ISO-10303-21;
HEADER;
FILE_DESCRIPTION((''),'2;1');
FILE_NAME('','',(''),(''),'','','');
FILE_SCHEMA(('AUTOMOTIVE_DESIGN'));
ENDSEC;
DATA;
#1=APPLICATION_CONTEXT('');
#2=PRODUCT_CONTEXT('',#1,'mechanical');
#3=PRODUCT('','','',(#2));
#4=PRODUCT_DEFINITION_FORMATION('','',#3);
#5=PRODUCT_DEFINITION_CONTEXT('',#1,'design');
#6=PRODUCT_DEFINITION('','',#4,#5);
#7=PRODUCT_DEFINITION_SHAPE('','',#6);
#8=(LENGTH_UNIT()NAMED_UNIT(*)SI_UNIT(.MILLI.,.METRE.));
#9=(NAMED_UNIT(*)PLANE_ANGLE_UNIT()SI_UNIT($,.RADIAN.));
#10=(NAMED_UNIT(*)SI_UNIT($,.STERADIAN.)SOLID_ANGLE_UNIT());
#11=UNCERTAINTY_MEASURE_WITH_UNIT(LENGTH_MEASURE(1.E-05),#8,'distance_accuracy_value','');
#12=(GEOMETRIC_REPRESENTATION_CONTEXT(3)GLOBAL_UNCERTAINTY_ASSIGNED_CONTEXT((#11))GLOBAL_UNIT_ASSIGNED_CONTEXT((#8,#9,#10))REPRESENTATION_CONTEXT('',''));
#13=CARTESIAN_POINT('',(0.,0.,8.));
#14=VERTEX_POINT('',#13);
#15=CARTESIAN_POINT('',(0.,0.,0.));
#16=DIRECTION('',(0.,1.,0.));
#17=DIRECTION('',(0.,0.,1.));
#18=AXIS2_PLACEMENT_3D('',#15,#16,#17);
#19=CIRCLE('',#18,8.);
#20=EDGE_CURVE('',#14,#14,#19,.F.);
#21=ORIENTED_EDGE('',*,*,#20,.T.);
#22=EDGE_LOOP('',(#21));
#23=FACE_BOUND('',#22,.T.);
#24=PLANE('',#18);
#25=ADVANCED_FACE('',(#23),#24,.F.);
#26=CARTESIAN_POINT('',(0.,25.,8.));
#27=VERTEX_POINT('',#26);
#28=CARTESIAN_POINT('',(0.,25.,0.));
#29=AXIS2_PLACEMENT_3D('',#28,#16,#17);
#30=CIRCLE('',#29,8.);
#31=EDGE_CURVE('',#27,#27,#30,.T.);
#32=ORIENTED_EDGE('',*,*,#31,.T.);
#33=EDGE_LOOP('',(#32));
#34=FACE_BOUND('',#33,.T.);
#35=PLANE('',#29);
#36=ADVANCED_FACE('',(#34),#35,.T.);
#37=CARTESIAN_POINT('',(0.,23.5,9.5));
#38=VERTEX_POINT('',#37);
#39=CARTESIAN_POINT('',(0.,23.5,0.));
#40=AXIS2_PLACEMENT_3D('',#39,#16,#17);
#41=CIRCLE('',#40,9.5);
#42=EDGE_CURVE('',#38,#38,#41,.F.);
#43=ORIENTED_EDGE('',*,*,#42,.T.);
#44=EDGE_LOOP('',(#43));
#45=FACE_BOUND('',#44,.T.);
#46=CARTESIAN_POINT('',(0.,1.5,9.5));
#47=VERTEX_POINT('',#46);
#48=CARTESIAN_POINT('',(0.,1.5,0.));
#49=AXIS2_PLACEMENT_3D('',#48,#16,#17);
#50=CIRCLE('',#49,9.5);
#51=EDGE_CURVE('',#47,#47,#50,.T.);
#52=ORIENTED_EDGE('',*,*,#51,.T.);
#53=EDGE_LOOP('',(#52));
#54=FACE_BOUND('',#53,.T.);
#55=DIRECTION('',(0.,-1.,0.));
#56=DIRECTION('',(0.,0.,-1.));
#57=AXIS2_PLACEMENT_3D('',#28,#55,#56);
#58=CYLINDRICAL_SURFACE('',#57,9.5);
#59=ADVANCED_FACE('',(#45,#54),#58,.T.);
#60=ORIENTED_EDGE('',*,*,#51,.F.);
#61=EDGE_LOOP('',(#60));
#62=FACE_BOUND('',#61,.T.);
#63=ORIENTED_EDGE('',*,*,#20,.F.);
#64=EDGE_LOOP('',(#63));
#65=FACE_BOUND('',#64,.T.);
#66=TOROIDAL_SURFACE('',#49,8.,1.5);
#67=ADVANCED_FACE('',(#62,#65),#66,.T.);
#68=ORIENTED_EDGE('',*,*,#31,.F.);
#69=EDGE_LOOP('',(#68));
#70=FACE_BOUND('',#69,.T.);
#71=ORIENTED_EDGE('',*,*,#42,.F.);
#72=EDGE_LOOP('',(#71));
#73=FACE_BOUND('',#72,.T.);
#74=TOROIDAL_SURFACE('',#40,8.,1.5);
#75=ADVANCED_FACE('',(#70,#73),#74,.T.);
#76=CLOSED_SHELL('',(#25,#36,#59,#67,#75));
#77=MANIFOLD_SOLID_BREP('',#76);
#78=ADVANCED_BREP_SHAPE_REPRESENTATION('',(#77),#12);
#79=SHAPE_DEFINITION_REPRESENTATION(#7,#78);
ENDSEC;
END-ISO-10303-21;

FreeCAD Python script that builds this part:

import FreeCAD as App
import Part
import Sketcher

V = App.Vector


def edges_at(feature, points):
    """Names of the edges that pass closest to the given points."""
    edges = feature.Shape.Edges
    near = lambda p: min(range(len(edges)), key=lambda i: edges[i].distToShape(Part.Vertex(*p))[0])
    return sorted({f"Edge{near(p) + 1}" for p in points})

doc = App.newDocument("Part")
body = doc.addObject("PartDesign::Body", "Body")

# Sketch on XZ plane
sketch1 = doc.addObject("Sketcher::SketchObject", "Sketch")
body.addObject(sketch1)
sketch1.AttachmentSupport = (doc.XZ_Plane, [""])
sketch1.MapMode = "FlatFace"
sketch1.addGeometry(Part.Circle(V(0, 0, 0), V(0, 0, 1), 10), False)
sketch1.addConstraint([
    Sketcher.Constraint("Coincident", 0, 3, -1, 1),
    Sketcher.Constraint("Diameter", 0, 19.0),
])
pad1 = doc.addObject("PartDesign::Pad", "Pad")
body.addObject(pad1)
pad1.Profile = sketch1
pad1.Length = 25
pad1.Reversed = True
doc.recompute()

fillet = doc.addObject("PartDesign::Fillet", "Fillet")
body.addObject(fillet)
fillet.Base = (pad1, edges_at(pad1, [(0, 0, -9.5), (0, 25, -9.5)]))
fillet.Radius = 1.5

doc.recompute()
